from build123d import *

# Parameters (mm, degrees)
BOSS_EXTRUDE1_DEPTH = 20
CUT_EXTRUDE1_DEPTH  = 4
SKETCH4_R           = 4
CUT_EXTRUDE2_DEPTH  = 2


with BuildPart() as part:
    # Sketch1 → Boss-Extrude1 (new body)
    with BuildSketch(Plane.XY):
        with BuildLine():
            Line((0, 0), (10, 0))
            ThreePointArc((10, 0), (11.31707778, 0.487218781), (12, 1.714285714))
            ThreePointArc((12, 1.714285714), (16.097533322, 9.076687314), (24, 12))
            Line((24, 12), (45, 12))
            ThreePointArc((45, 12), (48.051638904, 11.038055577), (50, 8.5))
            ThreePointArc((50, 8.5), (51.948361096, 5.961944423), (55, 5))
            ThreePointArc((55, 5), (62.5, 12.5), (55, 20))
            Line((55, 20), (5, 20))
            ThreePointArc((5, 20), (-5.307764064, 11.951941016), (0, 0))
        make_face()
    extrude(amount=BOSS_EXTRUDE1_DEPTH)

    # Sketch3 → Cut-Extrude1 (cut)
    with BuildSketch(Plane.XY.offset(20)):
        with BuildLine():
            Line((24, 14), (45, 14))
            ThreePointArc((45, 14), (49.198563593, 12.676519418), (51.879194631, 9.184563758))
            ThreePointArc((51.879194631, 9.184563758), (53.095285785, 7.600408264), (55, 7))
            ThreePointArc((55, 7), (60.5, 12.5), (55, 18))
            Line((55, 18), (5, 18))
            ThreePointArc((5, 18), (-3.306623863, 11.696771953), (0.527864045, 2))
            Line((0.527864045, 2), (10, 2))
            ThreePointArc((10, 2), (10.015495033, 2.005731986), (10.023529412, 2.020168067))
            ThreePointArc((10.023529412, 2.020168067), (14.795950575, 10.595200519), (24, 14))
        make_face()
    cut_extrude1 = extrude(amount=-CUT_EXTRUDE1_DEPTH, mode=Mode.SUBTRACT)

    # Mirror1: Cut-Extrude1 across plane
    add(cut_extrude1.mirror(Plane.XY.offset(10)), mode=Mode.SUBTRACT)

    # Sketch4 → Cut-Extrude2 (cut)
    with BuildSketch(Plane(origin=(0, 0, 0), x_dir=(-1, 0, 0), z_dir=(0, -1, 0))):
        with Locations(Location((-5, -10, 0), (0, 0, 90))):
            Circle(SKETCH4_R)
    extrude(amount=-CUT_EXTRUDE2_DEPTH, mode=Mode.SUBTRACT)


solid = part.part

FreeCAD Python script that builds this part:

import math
import FreeCAD as App
import Part
import Sketcher
from FreeCAD import Vector

doc = App.newDocument("Part")
body = doc.addObject("PartDesign::Body", "Body")

sketch1 = body.newObject("Sketcher::SketchObject", "Sketch")
sketch1.AttachmentSupport = (doc.getObject("XY_Plane"), [""])
sketch1.MapMode = "FlatFace"
sketch1.addGeometry(Part.LineSegment(Vector(0, 0, 0), Vector(10, 0, 0)), False)
sketch1.addGeometry(Part.ArcOfCircle(Part.Circle(Vector(10, 2.02381, 0), Vector(0, 0, 1), 2.02381), math.radians(-90), math.radians(-8.797411)), False)
sketch1.addGeometry(Part.ArcOfCircle(Part.Circle(Vector(24, -0.142857, 0), Vector(0, 0, 1), 12.142857), math.radians(90), math.radians(171.202589)), False)
sketch1.addGeometry(Part.LineSegment(Vector(24, 12, 0), Vector(45, 12, 0)), False)
sketch1.addGeometry(Part.ArcOfCircle(Part.Circle(Vector(45, 6.678571, 0), Vector(0, 0, 1), 5.321429), math.radians(20.01596), math.radians(90)), False)
sketch1.addGeometry(Part.ArcOfCircle(Part.Circle(Vector(55, 10.321429, 0), Vector(0, 0, 1), 5.321429), math.radians(-159.98404), math.radians(-90)), False)
sketch1.addGeometry(Part.ArcOfCircle(Part.Circle(Vector(55, 12.5, 0), Vector(0, 0, 1), 7.5), math.radians(-90), math.radians(90)), False)
sketch1.addGeometry(Part.LineSegment(Vector(55, 20, 0), Vector(5, 20, 0)), False)
sketch1.addGeometry(Part.ArcOfCircle(Part.Circle(Vector(5, 9.375, 0), Vector(0, 0, 1), 10.625), math.radians(90), math.radians(241.927513)), False)
sketch1.addConstraint(Sketcher.Constraint("Tangent", 0, 2, 1, 1))
sketch1.addConstraint(Sketcher.Constraint("Tangent", 1, 2, 2, 2))
sketch1.addConstraint(Sketcher.Constraint("Tangent", 2, 1, 3, 1))
sketch1.addConstraint(Sketcher.Constraint("Tangent", 3, 2, 4, 2))
sketch1.addConstraint(Sketcher.Constraint("Tangent", 4, 1, 5, 1))
sketch1.addConstraint(Sketcher.Constraint("Tangent", 5, 2, 6, 1))
sketch1.addConstraint(Sketcher.Constraint("Tangent", 6, 2, 7, 1))
sketch1.addConstraint(Sketcher.Constraint("Tangent", 7, 2, 8, 1))
sketch1.addConstraint(Sketcher.Constraint("Coincident", 8, 2, 0, 1))
sketch1.addConstraint(Sketcher.Constraint("Horizontal", 0))
sketch1.addConstraint(Sketcher.Constraint("Horizontal", 3))
sketch1.addConstraint(Sketcher.Constraint("Horizontal", 7))
sketch1.addConstraint(Sketcher.Constraint("Coincident", 8, 2, -1, 1))
sketch1.addConstraint(Sketcher.Constraint("Equal", 4, 5))
sketch1.addConstraint(Sketcher.Constraint("Vertical", 5, 3, 6, 3))
sketch1.addConstraint(Sketcher.Constraint("Radius", 6, 7.5))
sketch1.addConstraint(Sketcher.Constraint("DistanceX", 0, 1, 0, 2, 10.0))
sketch1.addConstraint(Sketcher.Constraint("DistanceX", 3, 1, 3, 2, 21.0))
sketch1.addConstraint(Sketcher.Constraint("DistanceX", 7, 2, 7, 1, 50.0))
sketch1.addConstraint(Sketcher.Constraint("DistanceX", -1, 1, 2, 3, 24.0))
sketch1.addConstraint(Sketcher.Constraint("DistanceX", -1, 1, 5, 3, 55.0))
sketch1.addConstraint(Sketcher.Constraint("DistanceX", -1, 1, 1, 2, 12.0))
sketch1.addConstraint(Sketcher.Constraint("DistanceY", -1, 1, 2, 1, 12.0))
sketch1.addConstraint(Sketcher.Constraint("DistanceY", -1, 1, 5, 2, 5.0))
pad1 = body.newObject("PartDesign::Pad", "Pad")
pad1.Profile = sketch1
pad1.Length = 20

sketch2 = body.newObject("Sketcher::SketchObject", "Sketch001")
sketch2.AttachmentSupport = (doc.getObject("XY_Plane"), [""])
sketch2.MapMode = "FlatFace"
sketch2.AttachmentOffset = App.Placement(Vector(0, 0, 20), App.Rotation())
sketch2.addGeometry(Part.LineSegment(Vector(24, 14, 0), Vector(45, 14, 0)), False)
sketch2.addGeometry(Part.ArcOfCircle(Part.Circle(Vector(45, 6.678571, 0), Vector(0, 0, 1), 7.321429), math.radians(20.01596), math.radians(90)), False)
sketch2.addGeometry(Part.ArcOfCircle(Part.Circle(Vector(55, 10.321429, 0), Vector(0, 0, 1), 3.321429), math.radians(-159.98404), math.radians(-90)), False)
sketch2.addGeometry(Part.ArcOfCircle(Part.Circle(Vector(55, 12.5, 0), Vector(0, 0, 1), 5.5), math.radians(-90), math.radians(90)), False)
sketch2.addGeometry(Part.LineSegment(Vector(55, 18, 0), Vector(5, 18, 0)), False)
sketch2.addGeometry(Part.ArcOfCircle(Part.Circle(Vector(5, 9.375, 0), Vector(0, 0, 1), 8.625), math.radians(90), math.radians(238.767741)), False)
sketch2.addGeometry(Part.LineSegment(Vector(0.527864, 2, 0), Vector(10, 2, 0)), False)
sketch2.addGeometry(Part.ArcOfCircle(Part.Circle(Vector(10, 2.02381, 0), Vector(0, 0, 1), 0.02381), math.radians(-90), math.radians(-8.797414)), False)
sketch2.addGeometry(Part.ArcOfCircle(Part.Circle(Vector(24, -0.142857, 0), Vector(0, 0, 1), 14.142857), math.radians(90), math.radians(171.202589)), False)
sketch2.addConstraint(Sketcher.Constraint("Tangent", 0, 2, 1, 2))
sketch2.addConstraint(Sketcher.Constraint("Tangent", 1, 1, 2, 1))
sketch2.addConstraint(Sketcher.Constraint("Tangent", 2, 2, 3, 1))
sketch2.addConstraint(Sketcher.Constraint("Tangent", 3, 2, 4, 1))
sketch2.addConstraint(Sketcher.Constraint("Tangent", 4, 2, 5, 1))
sketch2.addConstraint(Sketcher.Constraint("Coincident", 5, 2, 6, 1))
sketch2.addConstraint(Sketcher.Constraint("Tangent", 6, 2, 7, 1))
sketch2.addConstraint(Sketcher.Constraint("Tangent", 7, 2, 8, 2))
sketch2.addConstraint(Sketcher.Constraint("Tangent", 8, 1, 0, 1))
sketch2.addConstraint(Sketcher.Constraint("Horizontal", 0))
sketch2.addConstraint(Sketcher.Constraint("Horizontal", 4))
sketch2.addConstraint(Sketcher.Constraint("Horizontal", 6))
sketch2.addConstraint(Sketcher.Constraint("Vertical", 2, 3, 3, 3))
sketch2.addConstraint(Sketcher.Constraint("Radius", 3, 5.5))
sketch2.addConstraint(Sketcher.Constraint("DistanceX", 0, 1, 0, 2, 21.0))
sketch2.addConstraint(Sketcher.Constraint("DistanceX", 4, 2, 4, 1, 50.0))
sketch2.addConstraint(Sketcher.Constraint("DistanceX", -1, 1, 1, 3, 45.0))
sketch2.addConstraint(Sketcher.Constraint("DistanceX", -1, 1, 2, 3, 55.0))
sketch2.addConstraint(Sketcher.Constraint("DistanceX", -1, 1, 7, 3, 10.0))
sketch2.addConstraint(Sketcher.Constraint("DistanceY", -1, 1, 0, 2, 14.0))
sketch2.addConstraint(Sketcher.Constraint("DistanceY", -1, 1, 2, 2, 7.0))
sketch2.addConstraint(Sketcher.Constraint("DistanceY", -1, 1, 5, 2, 2.0))
sketch2.addConstraint(Sketcher.Constraint("Radius", 5, 8.625))
sketch2.addConstraint(Sketcher.Constraint("Radius", 1, 7.321429))
sketch2.addConstraint(Sketcher.Constraint("Radius", 7, 0.02381))
pocket1 = body.newObject("PartDesign::Pocket", "Pocket")
pocket1.Profile = sketch2
pocket1.Length = 4
doc.recompute()

datumplane = body.newObject("PartDesign::Plane", "DatumPlane")
datumplane.AttachmentSupport = (doc.getObject("XY_Plane"), [""])
datumplane.MapMode = "FlatFace"
datumplane.AttachmentOffset = App.Placement(Vector(0, 0, 10), App.Rotation())
mirrored = body.newObject("PartDesign::Mirrored", "Mirrored")
mirrored.Originals = [pocket1]
mirrored.MirrorPlane = (datumplane, [""])
body.Tip = mirrored

sketch3 = body.newObject("Sketcher::SketchObject", "Sketch002")
sketch3.AttachmentSupport = (doc.getObject("XZ_Plane"), [""])
sketch3.MapMode = "FlatFace"
sketch3.addGeometry(Part.Circle(Vector(5, 10, 0), Vector(0, 0, 1), 4), False)
sketch3.addConstraint(Sketcher.Constraint("Diameter", 0, 8.0))
sketch3.addConstraint(Sketcher.Constraint("DistanceX", -1, 1, 0, 3, 5.0))
sketch3.addConstraint(Sketcher.Constraint("DistanceY", -1, 1, 0, 3, 10.0))
pocket2 = body.newObject("PartDesign::Pocket", "Pocket001")
pocket2.Profile = sketch3
pocket2.Length = 2

doc.recompute()
